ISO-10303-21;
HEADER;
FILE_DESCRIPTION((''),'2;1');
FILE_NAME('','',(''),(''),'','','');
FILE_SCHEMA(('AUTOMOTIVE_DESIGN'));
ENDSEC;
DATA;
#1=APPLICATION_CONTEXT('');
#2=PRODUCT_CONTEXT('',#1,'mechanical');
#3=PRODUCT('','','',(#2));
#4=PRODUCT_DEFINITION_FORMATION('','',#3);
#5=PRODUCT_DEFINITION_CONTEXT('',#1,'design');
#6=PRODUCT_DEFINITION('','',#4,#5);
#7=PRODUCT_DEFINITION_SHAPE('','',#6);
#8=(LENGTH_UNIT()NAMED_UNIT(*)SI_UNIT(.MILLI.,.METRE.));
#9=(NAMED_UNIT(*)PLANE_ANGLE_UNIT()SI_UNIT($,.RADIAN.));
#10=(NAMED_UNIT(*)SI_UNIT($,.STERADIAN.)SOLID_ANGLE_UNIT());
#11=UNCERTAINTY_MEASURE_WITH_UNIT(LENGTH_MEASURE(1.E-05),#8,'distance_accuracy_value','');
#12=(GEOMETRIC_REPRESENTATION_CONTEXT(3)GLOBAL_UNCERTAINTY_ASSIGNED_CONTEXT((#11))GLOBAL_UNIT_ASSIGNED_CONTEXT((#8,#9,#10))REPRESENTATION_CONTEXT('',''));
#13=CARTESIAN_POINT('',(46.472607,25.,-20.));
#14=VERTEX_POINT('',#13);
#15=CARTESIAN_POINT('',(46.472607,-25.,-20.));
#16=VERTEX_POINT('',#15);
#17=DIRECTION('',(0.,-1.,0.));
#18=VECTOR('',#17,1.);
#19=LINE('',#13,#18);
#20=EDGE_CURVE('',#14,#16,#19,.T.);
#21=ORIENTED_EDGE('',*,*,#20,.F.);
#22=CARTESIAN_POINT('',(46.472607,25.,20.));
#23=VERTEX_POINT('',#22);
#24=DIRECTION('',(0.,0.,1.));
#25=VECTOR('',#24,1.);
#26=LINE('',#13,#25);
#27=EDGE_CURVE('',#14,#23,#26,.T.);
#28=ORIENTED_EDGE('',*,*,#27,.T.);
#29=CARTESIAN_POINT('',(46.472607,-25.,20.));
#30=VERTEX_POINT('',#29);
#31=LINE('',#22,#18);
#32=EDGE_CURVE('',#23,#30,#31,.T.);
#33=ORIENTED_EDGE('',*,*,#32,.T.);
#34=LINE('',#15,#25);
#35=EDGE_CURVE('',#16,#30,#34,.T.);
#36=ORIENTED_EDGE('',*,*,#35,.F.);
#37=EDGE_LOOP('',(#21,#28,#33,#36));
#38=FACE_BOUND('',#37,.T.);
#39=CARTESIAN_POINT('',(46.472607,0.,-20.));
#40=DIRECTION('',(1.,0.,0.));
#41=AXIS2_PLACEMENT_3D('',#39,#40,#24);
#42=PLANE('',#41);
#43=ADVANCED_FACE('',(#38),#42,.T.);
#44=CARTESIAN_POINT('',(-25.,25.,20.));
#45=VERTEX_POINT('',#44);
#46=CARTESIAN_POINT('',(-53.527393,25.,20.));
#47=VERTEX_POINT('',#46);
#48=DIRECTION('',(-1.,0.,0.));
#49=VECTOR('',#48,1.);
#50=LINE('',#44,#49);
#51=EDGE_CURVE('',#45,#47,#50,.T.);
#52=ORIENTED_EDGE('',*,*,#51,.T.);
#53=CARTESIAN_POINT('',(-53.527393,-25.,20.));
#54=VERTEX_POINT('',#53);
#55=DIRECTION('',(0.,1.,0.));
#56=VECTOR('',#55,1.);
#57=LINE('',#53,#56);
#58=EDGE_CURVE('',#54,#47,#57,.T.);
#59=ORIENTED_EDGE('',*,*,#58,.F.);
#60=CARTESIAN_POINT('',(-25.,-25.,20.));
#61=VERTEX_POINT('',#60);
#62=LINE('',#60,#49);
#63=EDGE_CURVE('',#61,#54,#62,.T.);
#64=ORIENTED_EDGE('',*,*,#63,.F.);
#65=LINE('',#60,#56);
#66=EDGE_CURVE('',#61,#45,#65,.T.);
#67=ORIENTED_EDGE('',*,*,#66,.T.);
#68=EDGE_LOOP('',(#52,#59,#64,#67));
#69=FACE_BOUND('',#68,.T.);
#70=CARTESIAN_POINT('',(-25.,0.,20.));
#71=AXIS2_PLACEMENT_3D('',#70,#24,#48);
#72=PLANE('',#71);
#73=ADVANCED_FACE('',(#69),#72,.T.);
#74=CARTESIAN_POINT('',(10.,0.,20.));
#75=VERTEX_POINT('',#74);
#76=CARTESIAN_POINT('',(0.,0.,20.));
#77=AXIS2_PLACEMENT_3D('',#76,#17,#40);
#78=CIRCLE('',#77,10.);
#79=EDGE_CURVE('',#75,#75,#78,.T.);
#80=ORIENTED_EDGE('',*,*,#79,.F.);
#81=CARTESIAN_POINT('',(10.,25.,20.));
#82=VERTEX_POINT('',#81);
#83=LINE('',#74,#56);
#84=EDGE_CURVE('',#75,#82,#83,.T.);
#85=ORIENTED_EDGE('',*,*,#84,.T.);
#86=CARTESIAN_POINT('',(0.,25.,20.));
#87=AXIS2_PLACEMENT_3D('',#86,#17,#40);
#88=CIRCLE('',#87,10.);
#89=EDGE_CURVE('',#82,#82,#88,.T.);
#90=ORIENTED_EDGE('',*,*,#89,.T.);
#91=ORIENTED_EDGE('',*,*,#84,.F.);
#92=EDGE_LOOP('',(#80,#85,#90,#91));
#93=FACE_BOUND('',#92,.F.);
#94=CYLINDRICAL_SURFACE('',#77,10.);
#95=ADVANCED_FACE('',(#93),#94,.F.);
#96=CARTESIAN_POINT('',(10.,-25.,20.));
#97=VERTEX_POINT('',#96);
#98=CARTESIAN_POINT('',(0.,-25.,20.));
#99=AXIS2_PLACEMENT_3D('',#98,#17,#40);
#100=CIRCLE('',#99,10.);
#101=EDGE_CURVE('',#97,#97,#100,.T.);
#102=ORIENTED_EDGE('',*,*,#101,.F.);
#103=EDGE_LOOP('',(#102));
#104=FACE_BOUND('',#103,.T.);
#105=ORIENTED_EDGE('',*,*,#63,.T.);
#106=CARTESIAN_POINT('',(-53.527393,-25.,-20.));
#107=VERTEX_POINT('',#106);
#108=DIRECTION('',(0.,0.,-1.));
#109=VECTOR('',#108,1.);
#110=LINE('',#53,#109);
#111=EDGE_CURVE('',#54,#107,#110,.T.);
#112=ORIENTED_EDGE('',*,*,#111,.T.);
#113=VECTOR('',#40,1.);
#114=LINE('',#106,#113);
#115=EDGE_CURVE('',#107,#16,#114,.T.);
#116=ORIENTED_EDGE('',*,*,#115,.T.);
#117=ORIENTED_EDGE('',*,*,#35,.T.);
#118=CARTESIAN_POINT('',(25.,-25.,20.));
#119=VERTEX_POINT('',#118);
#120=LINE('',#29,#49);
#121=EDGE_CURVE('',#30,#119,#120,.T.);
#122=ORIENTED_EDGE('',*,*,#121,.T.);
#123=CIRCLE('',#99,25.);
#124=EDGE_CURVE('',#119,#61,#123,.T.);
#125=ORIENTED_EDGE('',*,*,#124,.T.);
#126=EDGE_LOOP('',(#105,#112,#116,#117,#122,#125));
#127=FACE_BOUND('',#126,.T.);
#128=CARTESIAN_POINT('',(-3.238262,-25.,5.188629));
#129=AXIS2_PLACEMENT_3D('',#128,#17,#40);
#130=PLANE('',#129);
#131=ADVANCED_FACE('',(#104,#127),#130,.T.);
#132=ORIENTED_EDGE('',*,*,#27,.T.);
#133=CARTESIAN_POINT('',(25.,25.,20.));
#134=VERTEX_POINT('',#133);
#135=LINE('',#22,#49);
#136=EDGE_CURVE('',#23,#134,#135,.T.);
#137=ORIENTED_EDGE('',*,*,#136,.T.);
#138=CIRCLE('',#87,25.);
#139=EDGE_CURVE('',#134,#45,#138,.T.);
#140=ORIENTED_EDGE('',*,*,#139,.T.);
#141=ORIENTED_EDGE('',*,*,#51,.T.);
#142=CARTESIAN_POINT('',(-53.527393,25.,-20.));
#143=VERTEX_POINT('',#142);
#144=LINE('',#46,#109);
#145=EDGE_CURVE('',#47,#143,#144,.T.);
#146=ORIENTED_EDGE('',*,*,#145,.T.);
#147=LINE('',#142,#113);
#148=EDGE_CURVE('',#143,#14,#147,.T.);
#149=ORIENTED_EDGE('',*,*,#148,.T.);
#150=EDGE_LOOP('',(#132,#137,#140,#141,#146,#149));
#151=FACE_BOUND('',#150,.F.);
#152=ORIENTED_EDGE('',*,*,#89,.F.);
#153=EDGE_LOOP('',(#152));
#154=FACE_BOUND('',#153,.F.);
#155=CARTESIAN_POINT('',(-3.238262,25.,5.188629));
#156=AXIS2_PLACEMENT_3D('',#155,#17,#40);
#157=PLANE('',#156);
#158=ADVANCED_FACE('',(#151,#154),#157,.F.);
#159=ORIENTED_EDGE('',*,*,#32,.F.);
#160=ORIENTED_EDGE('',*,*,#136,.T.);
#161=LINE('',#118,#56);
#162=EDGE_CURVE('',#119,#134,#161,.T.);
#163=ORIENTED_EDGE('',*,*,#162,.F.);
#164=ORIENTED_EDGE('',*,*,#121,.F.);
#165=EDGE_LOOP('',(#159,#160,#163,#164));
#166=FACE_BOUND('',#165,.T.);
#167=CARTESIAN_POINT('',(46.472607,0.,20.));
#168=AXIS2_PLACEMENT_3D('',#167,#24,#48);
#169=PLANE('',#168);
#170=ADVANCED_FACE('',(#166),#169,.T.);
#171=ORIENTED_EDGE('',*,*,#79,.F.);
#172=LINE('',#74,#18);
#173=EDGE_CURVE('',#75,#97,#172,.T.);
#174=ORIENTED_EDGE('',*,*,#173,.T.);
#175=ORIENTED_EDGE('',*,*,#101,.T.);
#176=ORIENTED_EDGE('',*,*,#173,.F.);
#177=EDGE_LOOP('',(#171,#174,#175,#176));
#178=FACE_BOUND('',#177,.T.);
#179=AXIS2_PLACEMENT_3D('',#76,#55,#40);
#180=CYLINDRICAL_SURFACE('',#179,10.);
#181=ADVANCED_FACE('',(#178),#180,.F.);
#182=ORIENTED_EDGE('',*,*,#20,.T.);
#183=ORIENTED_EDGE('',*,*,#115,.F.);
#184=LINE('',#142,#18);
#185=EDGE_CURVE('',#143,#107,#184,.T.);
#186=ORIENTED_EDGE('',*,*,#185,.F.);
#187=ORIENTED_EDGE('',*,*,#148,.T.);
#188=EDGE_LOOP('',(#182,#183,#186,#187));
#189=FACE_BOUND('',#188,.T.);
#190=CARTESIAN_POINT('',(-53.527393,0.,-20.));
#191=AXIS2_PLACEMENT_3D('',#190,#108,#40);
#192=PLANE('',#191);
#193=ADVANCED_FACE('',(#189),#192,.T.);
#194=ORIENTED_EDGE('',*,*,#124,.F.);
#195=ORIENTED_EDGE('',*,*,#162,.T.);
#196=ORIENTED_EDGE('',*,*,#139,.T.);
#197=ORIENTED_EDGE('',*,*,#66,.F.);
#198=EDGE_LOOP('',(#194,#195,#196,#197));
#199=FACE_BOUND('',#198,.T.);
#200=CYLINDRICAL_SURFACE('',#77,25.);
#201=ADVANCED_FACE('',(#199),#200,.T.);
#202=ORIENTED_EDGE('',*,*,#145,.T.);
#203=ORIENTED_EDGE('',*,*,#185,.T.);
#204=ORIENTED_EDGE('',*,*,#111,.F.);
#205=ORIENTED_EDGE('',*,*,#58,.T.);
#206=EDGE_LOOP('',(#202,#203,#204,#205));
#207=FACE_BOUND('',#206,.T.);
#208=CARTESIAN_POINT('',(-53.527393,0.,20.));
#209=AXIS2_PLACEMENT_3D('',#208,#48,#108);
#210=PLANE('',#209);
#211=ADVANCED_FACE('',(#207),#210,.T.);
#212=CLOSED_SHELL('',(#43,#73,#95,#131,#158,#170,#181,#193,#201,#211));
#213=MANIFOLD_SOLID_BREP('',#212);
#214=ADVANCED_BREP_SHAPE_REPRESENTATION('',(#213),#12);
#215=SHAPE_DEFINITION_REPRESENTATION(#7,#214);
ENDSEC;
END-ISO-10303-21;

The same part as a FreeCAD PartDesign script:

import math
import FreeCAD as App
import Part
import Sketcher
from FreeCAD import Vector

doc = App.newDocument("Part")
params = doc.addObject("Spreadsheet::Sheet", "Params")
for row, (alias, value) in enumerate([
    ("sketch1_diameter", "20 mm"),
    ("sketch1_radius", "25 mm"),
    ("sketch1_width", "100 mm"),
    ("sketch1_height", "40 mm"),
    ("pad1_length", "25 mm"),
    ("sketch2_diameter", "20 mm"),
    ("sketch2_radius", "25 mm"),
    ("sketch2_width", "100 mm"),
    ("sketch2_height", "40 mm"),
    ("pad2_length", "25 mm"),
    ("pad2_length2", "25 mm"),
], start=1):
    params.set(f"A{row}", alias)
    params.set(f"B{row}", "=" + value)
    params.setAlias(f"B{row}", alias)

body = doc.addObject("PartDesign::Body", "Body")

# Sketch on XZ plane
sketch1 = doc.addObject("Sketcher::SketchObject", "Sketch")
body.addObject(sketch1)
sketch1.AttachmentSupport = (doc.XZ_Plane, [""])
sketch1.MapMode = "FlatFace"
sketch1.addGeometry(Part.LineSegment(Vector(-54, 20, 0), Vector(-54, -20, 0)), False)
sketch1.addGeometry(Part.LineSegment(Vector(-54, -20, 0), Vector(46, -20, 0)), False)
sketch1.addGeometry(Part.LineSegment(Vector(46, -20, 0), Vector(46, 20, 0)), False)
sketch1.addGeometry(Part.LineSegment(Vector(46, 20, 0), Vector(25, 20, 0)), False)
sketch1.addGeometry(Part.ArcOfCircle(Part.Circle(Vector(0, 20, 0), Vector(0, 0, 1), 25), math.radians(0), math.radians(180)), False)
sketch1.addGeometry(Part.LineSegment(Vector(-25, 20, 0), Vector(-54, 20, 0)), False)
sketch1.addGeometry(Part.Circle(Vector(0, 20, 0), Vector(0, 0, 1), 10), False)
sketch1.addConstraint(Sketcher.Constraint("Coincident", 0, 2, 1, 1))
sketch1.addConstraint(Sketcher.Constraint("Coincident", 1, 2, 2, 1))
sketch1.addConstraint(Sketcher.Constraint("Coincident", 2, 2, 3, 1))
sketch1.addConstraint(Sketcher.Constraint("Coincident", 3, 2, 4, 1))
sketch1.addConstraint(Sketcher.Constraint("Coincident", 4, 2, 5, 1))
sketch1.addConstraint(Sketcher.Constraint("Coincident", 5, 2, 0, 1))
sketch1.addConstraint(Sketcher.Constraint("Vertical", 0))
sketch1.addConstraint(Sketcher.Constraint("Horizontal", 1))
sketch1.addConstraint(Sketcher.Constraint("Vertical", 2))
sketch1.addConstraint(Sketcher.Constraint("Horizontal", 3))
sketch1.addConstraint(Sketcher.Constraint("Horizontal", 5))
sketch1.addConstraint(Sketcher.Constraint("Coincident", 6, 3, 4, 3))
sketch1.addConstraint(Sketcher.Constraint("Symmetric", 3, 2, 4, 2, -2))
sketch1.addConstraint(Sketcher.Constraint("Horizontal", 6, 3, 2, 2))
sketch1.addConstraint(Sketcher.Constraint("Diameter", 6, 20.0))
sketch1.addConstraint(Sketcher.Constraint("Radius", 4, 25.0))
sketch1.addConstraint(Sketcher.Constraint("DistanceX", 1, 1, 1, 2, 100.0))
sketch1.addConstraint(Sketcher.Constraint("DistanceY", 0, 2, 0, 1, 40.0))
sketch1.addConstraint(Sketcher.Constraint("DistanceY", -1, 1, 4, 3, 20.0))
sketch1.addConstraint(Sketcher.Constraint("DistanceX", 3, 2, 3, 1, 21.472607))
sketch1.setExpression("Constraints[14]", "Params.sketch1_diameter")
sketch1.setExpression("Constraints[15]", "Params.sketch1_radius")
sketch1.setExpression("Constraints[16]", "Params.sketch1_width")
sketch1.setExpression("Constraints[17]", "Params.sketch1_height")
pad1 = doc.addObject("PartDesign::Pad", "Pad")
body.addObject(pad1)
pad1.Profile = sketch1
pad1.setExpression("Length", "Params.pad1_length")

# Sketch on XZ plane
sketch2 = doc.addObject("Sketcher::SketchObject", "Sketch001")
body.addObject(sketch2)
sketch2.AttachmentSupport = (doc.XZ_Plane, [""])
sketch2.MapMode = "FlatFace"
sketch2.addGeometry(Part.LineSegment(Vector(-54, 20, 0), Vector(-54, -20, 0)), False)
sketch2.addGeometry(Part.LineSegment(Vector(-54, -20, 0), Vector(46, -20, 0)), False)
sketch2.addGeometry(Part.LineSegment(Vector(46, -20, 0), Vector(46, 20, 0)), False)
sketch2.addGeometry(Part.LineSegment(Vector(46, 20, 0), Vector(25, 20, 0)), False)
sketch2.addGeometry(Part.ArcOfCircle(Part.Circle(Vector(0, 20, 0), Vector(0, 0, 1), 25), math.radians(0), math.radians(180)), False)
sketch2.addGeometry(Part.LineSegment(Vector(-25, 20, 0), Vector(-54, 20, 0)), False)
sketch2.addGeometry(Part.Circle(Vector(0, 20, 0), Vector(0, 0, 1), 10), False)
sketch2.addConstraint(Sketcher.Constraint("Coincident", 0, 2, 1, 1))
sketch2.addConstraint(Sketcher.Constraint("Coincident", 1, 2, 2, 1))
sketch2.addConstraint(Sketcher.Constraint("Coincident", 2, 2, 3, 1))
sketch2.addConstraint(Sketcher.Constraint("Coincident", 3, 2, 4, 1))
sketch2.addConstraint(Sketcher.Constraint("Coincident", 4, 2, 5, 1))
sketch2.addConstraint(Sketcher.Constraint("Coincident", 5, 2, 0, 1))
sketch2.addConstraint(Sketcher.Constraint("Vertical", 0))
sketch2.addConstraint(Sketcher.Constraint("Horizontal", 1))
sketch2.addConstraint(Sketcher.Constraint("Vertical", 2))
sketch2.addConstraint(Sketcher.Constraint("Horizontal", 3))
sketch2.addConstraint(Sketcher.Constraint("Horizontal", 5))
sketch2.addConstraint(Sketcher.Constraint("Coincident", 6, 3, 4, 3))
sketch2.addConstraint(Sketcher.Constraint("Symmetric", 3, 2, 4, 2, -2))
sketch2.addConstraint(Sketcher.Constraint("Horizontal", 6, 3, 2, 2))
sketch2.addConstraint(Sketcher.Constraint("Diameter", 6, 20.0))
sketch2.addConstraint(Sketcher.Constraint("Radius", 4, 25.0))
sketch2.addConstraint(Sketcher.Constraint("DistanceX", 1, 1, 1, 2, 100.0))
sketch2.addConstraint(Sketcher.Constraint("DistanceY", 0, 2, 0, 1, 40.0))
sketch2.addConstraint(Sketcher.Constraint("DistanceY", -1, 1, 4, 3, 20.0))
sketch2.addConstraint(Sketcher.Constraint("DistanceX", 3, 2, 3, 1, 21.472607))
sketch2.setExpression("Constraints[14]", "Params.sketch2_diameter")
sketch2.setExpression("Constraints[15]", "Params.sketch2_radius")
sketch2.setExpression("Constraints[16]", "Params.sketch2_width")
sketch2.setExpression("Constraints[17]", "Params.sketch2_height")
pad2 = doc.addObject("PartDesign::Pad", "Pad001")
body.addObject(pad2)
pad2.Profile = sketch2
pad2.Type = "TwoLengths"
pad2.setExpression("Length", "Params.pad2_length")
pad2.setExpression("Length2", "Params.pad2_length2")

doc.recompute()
